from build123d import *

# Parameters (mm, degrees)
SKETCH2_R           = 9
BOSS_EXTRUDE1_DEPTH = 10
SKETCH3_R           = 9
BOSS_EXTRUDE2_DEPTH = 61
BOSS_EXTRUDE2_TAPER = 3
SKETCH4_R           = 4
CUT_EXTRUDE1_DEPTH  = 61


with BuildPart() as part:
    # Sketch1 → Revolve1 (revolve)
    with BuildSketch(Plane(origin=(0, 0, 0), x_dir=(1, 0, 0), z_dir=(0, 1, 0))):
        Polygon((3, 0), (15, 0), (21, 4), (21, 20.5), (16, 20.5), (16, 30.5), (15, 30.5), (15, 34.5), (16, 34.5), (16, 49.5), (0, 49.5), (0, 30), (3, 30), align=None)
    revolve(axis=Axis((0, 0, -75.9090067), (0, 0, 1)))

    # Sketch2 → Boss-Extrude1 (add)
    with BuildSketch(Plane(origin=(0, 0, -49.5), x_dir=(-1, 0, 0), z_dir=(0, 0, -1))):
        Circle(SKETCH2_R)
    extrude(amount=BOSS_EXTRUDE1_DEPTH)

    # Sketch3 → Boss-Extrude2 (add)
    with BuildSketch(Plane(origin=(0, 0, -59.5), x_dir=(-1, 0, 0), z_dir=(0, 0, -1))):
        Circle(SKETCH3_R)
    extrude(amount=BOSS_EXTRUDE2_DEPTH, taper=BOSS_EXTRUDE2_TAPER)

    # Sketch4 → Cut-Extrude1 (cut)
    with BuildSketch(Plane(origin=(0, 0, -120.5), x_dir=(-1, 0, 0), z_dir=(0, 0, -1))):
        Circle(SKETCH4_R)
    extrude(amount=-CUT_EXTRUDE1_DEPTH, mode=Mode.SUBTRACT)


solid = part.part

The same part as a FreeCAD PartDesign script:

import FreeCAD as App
import Part
import Sketcher
from FreeCAD import Vector

doc = App.newDocument("Part")
body = doc.addObject("PartDesign::Body", "Body")

# Sketch on XZ plane
sketch1 = body.newObject("Sketcher::SketchObject", "Sketch")
sketch1.AttachmentSupport = (doc.getObject("XZ_Plane"), [""])
sketch1.MapMode = "FlatFace"
sketch1.addGeometry([
    Part.LineSegment(Vector(3, 0, 0), Vector(15, 0, 0)),  # 0
    Part.LineSegment(Vector(15, 0, 0), Vector(21, -4, 0)),  # 1
    Part.LineSegment(Vector(21, -4, 0), Vector(21, -20.5, 0)),  # 2
    Part.LineSegment(Vector(21, -20.5, 0), Vector(16, -20.5, 0)),  # 3
    Part.LineSegment(Vector(16, -20.5, 0), Vector(16, -30.5, 0)),  # 4
    Part.LineSegment(Vector(16, -30.5, 0), Vector(15, -30.5, 0)),  # 5
    Part.LineSegment(Vector(15, -30.5, 0), Vector(15, -34.5, 0)),  # 6
    Part.LineSegment(Vector(15, -34.5, 0), Vector(16, -34.5, 0)),  # 7
    Part.LineSegment(Vector(16, -34.5, 0), Vector(16, -49.5, 0)),  # 8
    Part.LineSegment(Vector(16, -49.5, 0), Vector(0, -49.5, 0)),  # 9
    Part.LineSegment(Vector(0, -49.5, 0), Vector(0, -30, 0)),  # 10
    Part.LineSegment(Vector(0, -30, 0), Vector(3, -30, 0)),  # 11
    Part.LineSegment(Vector(3, -30, 0), Vector(3, 0, 0)),  # 12
], False)
sketch1.addConstraint([
    Sketcher.Constraint("Coincident", 0, 2, 1, 1),
    Sketcher.Constraint("Coincident", 1, 2, 2, 1),
    Sketcher.Constraint("Coincident", 2, 2, 3, 1),
    Sketcher.Constraint("Coincident", 3, 2, 4, 1),
    Sketcher.Constraint("Coincident", 4, 2, 5, 1),
    Sketcher.Constraint("Coincident", 5, 2, 6, 1),
    Sketcher.Constraint("Coincident", 6, 2, 7, 1),
    Sketcher.Constraint("Coincident", 7, 2, 8, 1),
    Sketcher.Constraint("Coincident", 8, 2, 9, 1),
    Sketcher.Constraint("Coincident", 9, 2, 10, 1),
    Sketcher.Constraint("Coincident", 10, 2, 11, 1),
    Sketcher.Constraint("Coincident", 11, 2, 12, 1),
    Sketcher.Constraint("Coincident", 12, 2, 0, 1),
    Sketcher.Constraint("Horizontal", 0),
    Sketcher.Constraint("Vertical", 2),
    Sketcher.Constraint("Horizontal", 3),
    Sketcher.Constraint("Vertical", 4),
    Sketcher.Constraint("Horizontal", 5),
    Sketcher.Constraint("Vertical", 6),
    Sketcher.Constraint("Horizontal", 7),
    Sketcher.Constraint("Vertical", 8),
    Sketcher.Constraint("Horizontal", 9),
    Sketcher.Constraint("Vertical", 10),
    Sketcher.Constraint("Horizontal", 11),
    Sketcher.Constraint("Vertical", 12),
    Sketcher.Constraint("PointOnObject", 0, 2, -1),
    Sketcher.Constraint("PointOnObject", 9, 2, -2),
    Sketcher.Constraint("Vertical", 0, 2, 5, 2),
    Sketcher.Constraint("Vertical", 4, 2, 7, 2),
    Sketcher.Constraint("DistanceX", 0, 1, 0, 2, 12.0),
    Sketcher.Constraint("DistanceX", 3, 2, 3, 1, 5.0),
    Sketcher.Constraint("DistanceX", 5, 2, 5, 1, 1.0),
    Sketcher.Constraint("DistanceX", 9, 2, 9, 1, 16.0),
    Sketcher.Constraint("DistanceY", 4, 2, 4, 1, 10.0),
    Sketcher.Constraint("DistanceY", 6, 2, 6, 1, 4.0),
    Sketcher.Constraint("DistanceY", 8, 2, 8, 1, 15.0),
    Sketcher.Constraint("DistanceY", 12, 1, 12, 2, 30.0),
    Sketcher.Constraint("DistanceY", 2, 2, 2, 1, 16.5),
    Sketcher.Constraint("DistanceY", 10, 1, 10, 2, 19.5),
])
revolution = body.newObject("PartDesign::Revolution", "Revolution")
revolution.Profile = sketch1
revolution.ReferenceAxis = (sketch1, ["V_Axis"])
revolution.Angle = 360

# Sketch on XY plane
sketch2 = body.newObject("Sketcher::SketchObject", "Sketch001")
sketch2.AttachmentSupport = (doc.getObject("XY_Plane"), [""])
sketch2.MapMode = "FlatFace"
sketch2.AttachmentOffset = App.Placement(Vector(0, 0, -49.5), App.Rotation())
sketch2.addGeometry(Part.Circle(Vector(0, 0, 0), Vector(0, 0, 1), 9), False)
sketch2.addConstraint([
    Sketcher.Constraint("Coincident", 0, 3, -1, 1),
    Sketcher.Constraint("Diameter", 0, 18.0),
])
pad1 = body.newObject("PartDesign::Pad", "Pad")
pad1.Profile = sketch2
pad1.Length = 10
pad1.Reversed = True

# Sketch on XY plane
sketch3 = body.newObject("Sketcher::SketchObject", "Sketch002")
sketch3.AttachmentSupport = (doc.getObject("XY_Plane"), [""])
sketch3.MapMode = "FlatFace"
sketch3.AttachmentOffset = App.Placement(Vector(0, 0, -59.5), App.Rotation())
sketch3.addGeometry(Part.Circle(Vector(0, 0, 0), Vector(0, 0, 1), 9), False)
sketch3.addConstraint([
    Sketcher.Constraint("Coincident", 0, 3, -1, 1),
    Sketcher.Constraint("Diameter", 0, 18.0),
])
pad2 = body.newObject("PartDesign::Pad", "Pad001")
pad2.Profile = sketch3
pad2.Length = 61
pad2.Reversed = True
pad2.TaperAngle = -3

# Sketch on XY plane
sketch4 = body.newObject("Sketcher::SketchObject", "Sketch003")
sketch4.AttachmentSupport = (doc.getObject("XY_Plane"), [""])
sketch4.MapMode = "FlatFace"
sketch4.AttachmentOffset = App.Placement(Vector(0, 0, -120.5), App.Rotation())
sketch4.addGeometry(Part.Circle(Vector(0, 0, 0), Vector(0, 0, 1), 4), False)
sketch4.addConstraint([
    Sketcher.Constraint("Coincident", 0, 3, -1, 1),
    Sketcher.Constraint("Diameter", 0, 8.0),
])
pocket1 = body.newObject("PartDesign::Pocket", "Pocket")
pocket1.Profile = sketch4
pocket1.Length = 61
pocket1.Reversed = True

doc.recompute()
